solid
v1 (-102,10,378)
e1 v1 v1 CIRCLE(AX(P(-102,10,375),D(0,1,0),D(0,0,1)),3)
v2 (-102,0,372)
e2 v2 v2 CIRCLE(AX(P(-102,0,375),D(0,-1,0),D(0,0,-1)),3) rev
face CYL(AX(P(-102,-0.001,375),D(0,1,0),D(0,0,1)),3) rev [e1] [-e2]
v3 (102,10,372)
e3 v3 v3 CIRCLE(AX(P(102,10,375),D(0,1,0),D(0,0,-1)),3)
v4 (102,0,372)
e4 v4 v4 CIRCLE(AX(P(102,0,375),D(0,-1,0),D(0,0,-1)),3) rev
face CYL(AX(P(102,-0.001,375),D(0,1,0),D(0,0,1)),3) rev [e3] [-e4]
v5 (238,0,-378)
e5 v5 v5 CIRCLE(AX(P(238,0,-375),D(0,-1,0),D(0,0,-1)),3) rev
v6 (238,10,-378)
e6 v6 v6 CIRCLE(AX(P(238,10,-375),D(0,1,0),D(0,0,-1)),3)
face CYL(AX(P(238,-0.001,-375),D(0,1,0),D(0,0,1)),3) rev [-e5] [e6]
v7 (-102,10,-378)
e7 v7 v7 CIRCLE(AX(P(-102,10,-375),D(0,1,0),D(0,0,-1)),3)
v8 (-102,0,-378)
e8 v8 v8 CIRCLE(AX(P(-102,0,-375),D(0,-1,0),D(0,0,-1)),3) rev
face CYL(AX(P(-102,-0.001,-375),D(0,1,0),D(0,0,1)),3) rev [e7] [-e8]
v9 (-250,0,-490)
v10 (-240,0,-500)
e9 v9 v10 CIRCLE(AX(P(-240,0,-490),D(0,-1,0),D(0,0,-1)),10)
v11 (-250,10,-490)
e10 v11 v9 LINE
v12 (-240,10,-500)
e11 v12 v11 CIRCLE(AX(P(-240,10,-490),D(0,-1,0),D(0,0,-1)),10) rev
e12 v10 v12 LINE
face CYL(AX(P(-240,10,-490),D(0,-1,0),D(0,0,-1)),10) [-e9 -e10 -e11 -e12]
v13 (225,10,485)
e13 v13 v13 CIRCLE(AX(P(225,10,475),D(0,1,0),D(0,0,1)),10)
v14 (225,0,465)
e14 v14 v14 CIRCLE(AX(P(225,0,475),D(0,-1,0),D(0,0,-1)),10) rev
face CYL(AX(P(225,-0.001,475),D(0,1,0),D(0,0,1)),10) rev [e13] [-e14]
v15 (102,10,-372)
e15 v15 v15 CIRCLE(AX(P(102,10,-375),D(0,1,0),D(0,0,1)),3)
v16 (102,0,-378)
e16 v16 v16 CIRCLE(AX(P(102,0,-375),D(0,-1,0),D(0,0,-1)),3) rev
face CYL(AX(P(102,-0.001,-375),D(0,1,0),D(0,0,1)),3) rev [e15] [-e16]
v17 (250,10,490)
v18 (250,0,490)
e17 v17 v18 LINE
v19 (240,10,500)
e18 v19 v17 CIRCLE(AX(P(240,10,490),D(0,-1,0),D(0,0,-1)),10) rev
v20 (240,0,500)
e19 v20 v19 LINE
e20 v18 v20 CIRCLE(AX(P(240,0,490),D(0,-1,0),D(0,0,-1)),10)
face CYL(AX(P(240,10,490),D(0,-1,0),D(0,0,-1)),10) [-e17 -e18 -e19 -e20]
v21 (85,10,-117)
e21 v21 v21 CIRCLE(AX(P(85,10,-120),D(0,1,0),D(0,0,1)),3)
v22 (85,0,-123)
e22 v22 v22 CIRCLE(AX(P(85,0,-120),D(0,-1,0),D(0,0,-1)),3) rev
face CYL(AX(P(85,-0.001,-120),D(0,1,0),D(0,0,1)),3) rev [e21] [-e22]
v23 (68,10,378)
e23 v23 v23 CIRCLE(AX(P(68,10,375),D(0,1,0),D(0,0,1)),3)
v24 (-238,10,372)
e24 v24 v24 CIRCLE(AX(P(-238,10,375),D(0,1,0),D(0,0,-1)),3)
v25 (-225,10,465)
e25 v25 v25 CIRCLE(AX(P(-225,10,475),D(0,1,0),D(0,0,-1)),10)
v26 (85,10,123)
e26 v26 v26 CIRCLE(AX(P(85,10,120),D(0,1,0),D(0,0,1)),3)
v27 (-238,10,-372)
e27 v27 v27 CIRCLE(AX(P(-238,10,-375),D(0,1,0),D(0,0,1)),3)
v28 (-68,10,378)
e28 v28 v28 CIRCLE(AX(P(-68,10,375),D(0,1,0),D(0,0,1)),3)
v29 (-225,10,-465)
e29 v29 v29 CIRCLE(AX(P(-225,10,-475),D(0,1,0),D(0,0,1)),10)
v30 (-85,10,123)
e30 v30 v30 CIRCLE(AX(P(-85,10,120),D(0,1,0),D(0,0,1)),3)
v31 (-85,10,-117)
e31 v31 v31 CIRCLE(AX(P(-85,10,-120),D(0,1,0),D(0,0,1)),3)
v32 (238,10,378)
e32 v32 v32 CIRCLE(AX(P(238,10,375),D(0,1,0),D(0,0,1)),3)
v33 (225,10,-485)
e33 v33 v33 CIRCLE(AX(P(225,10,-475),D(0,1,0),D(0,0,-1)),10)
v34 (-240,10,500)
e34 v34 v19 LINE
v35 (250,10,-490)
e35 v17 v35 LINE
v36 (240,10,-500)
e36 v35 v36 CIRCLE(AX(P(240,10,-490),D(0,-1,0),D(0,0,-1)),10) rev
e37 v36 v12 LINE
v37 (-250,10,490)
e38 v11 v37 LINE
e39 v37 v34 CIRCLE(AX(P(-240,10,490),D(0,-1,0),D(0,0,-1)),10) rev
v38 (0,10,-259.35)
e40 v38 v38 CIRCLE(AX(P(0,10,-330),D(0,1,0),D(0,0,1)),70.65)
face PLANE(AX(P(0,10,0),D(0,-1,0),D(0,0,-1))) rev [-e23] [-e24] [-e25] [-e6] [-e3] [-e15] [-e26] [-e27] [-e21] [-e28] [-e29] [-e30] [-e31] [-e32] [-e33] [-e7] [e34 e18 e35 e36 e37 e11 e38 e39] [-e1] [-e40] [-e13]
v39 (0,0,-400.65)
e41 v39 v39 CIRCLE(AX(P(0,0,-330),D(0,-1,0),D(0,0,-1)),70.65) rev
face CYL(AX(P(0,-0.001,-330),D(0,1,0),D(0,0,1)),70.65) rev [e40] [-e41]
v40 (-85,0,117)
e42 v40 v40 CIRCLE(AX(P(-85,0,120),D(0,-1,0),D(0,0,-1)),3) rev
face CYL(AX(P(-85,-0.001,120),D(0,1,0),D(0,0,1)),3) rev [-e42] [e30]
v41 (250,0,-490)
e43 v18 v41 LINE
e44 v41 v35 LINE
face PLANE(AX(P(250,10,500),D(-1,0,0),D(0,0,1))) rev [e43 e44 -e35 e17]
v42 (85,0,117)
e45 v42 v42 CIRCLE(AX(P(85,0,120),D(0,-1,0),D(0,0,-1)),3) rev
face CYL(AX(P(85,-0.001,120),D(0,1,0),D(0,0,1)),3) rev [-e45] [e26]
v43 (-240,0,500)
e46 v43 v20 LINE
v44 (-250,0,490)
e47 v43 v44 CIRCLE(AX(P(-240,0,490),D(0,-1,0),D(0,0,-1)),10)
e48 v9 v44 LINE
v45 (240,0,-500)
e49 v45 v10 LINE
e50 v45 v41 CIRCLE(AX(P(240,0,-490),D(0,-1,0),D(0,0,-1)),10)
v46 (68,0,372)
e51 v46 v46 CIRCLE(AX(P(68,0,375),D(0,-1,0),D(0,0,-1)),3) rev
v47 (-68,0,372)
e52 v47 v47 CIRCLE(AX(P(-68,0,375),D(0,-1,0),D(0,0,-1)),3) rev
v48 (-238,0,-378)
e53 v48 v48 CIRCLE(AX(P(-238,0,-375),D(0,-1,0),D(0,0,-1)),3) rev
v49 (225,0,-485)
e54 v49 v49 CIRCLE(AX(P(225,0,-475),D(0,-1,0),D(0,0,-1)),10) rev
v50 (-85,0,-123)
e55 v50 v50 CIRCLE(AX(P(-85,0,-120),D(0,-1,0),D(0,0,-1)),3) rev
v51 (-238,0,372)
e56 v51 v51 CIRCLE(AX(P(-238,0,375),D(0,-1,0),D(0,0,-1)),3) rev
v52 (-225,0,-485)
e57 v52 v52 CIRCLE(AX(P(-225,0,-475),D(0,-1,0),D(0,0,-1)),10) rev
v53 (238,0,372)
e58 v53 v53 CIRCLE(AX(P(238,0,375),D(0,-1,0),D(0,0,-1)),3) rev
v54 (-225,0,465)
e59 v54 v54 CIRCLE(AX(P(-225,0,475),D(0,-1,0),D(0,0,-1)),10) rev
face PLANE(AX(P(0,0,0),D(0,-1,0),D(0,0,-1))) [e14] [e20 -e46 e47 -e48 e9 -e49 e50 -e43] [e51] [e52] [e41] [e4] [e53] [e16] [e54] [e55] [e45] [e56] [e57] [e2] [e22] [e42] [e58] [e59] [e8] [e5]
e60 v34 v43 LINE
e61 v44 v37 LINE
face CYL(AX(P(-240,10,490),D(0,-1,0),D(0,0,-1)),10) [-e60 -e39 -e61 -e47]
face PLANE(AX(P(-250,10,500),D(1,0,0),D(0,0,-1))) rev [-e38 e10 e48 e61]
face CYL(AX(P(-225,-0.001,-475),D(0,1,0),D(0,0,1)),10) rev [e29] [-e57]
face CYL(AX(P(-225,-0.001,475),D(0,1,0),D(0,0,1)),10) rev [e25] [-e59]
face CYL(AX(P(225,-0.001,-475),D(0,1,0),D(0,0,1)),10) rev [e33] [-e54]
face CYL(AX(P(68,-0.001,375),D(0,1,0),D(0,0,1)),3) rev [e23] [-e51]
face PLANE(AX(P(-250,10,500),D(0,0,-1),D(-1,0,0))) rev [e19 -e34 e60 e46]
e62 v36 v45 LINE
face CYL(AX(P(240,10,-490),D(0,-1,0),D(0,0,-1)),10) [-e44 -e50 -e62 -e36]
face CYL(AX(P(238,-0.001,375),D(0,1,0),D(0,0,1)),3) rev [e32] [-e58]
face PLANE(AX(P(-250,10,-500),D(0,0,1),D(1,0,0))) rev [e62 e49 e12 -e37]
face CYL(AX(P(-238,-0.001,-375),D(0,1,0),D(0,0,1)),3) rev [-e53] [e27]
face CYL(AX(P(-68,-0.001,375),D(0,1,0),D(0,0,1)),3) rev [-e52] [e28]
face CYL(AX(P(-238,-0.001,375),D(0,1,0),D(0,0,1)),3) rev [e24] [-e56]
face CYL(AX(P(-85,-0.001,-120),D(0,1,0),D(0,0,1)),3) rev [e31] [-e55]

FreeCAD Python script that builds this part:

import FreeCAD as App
import Part
import Sketcher

V = App.Vector
Q = App.Units.Quantity


def edges_at(feature, points):
    """Names of the edges that pass closest to the given points."""
    edges = feature.Shape.Edges
    near = lambda p: min(range(len(edges)), key=lambda i: edges[i].distToShape(Part.Vertex(*p))[0])
    return sorted({f"Edge{near(p) + 1}" for p in points})


def add_polygon(sketch, points):
    """Adds a closed chain of lines whose ends are joined by coincident constraints."""
    first, n = sketch.GeometryCount, len(points)
    for a, b in zip(points, points[1:] + points[:1]):
        sketch.addGeometry(Part.LineSegment(App.Vector(*a, 0), App.Vector(*b, 0)), False)
    for i in range(n):
        sketch.addConstraint(Sketcher.Constraint("Coincident", first + i, 2, first + (i + 1) % n, 1))

doc = App.newDocument("Part")
body = doc.addObject("PartDesign::Body", "Body")

sketch1 = body.newObject("Sketcher::SketchObject", "Sketch")
sketch1.AttachmentSupport = (doc.getObject("XZ_Plane"), [""])
sketch1.MapMode = "FlatFace"
add_polygon(sketch1, [(-250, -500), (-250, 500), (250, 500), (250, -500)])
sketch1.addConstraint([
    Sketcher.Constraint("Vertical", 0),
    Sketcher.Constraint("Horizontal", 1),
    Sketcher.Constraint("Vertical", 2),
    Sketcher.Constraint("Horizontal", 3),
    Sketcher.Constraint("Symmetric", 0, 2, 2, 2, -1, 1),
    Sketcher.Constraint("DistanceX", 1, 1, 1, 2, Q("500 mm")),
    Sketcher.Constraint("DistanceY", 0, 1, 0, 2, Q("1000 mm")),
])
pad1 = body.newObject("PartDesign::Pad", "Pad")
pad1.Profile = sketch1
pad1.Length = 10
pad1.Reversed = True

sketch2 = body.newObject("Sketcher::SketchObject", "Sketch001")
sketch2.AttachmentSupport = (doc.getObject("XZ_Plane"), [""])
sketch2.MapMode = "FlatFace"
sketch2.AttachmentOffset = App.Placement(V(0, 0, -10), App.Rotation())
sketch2.addGeometry(Part.Circle(V(-225, -475, 0), V(0, 0, 1), 10), False)
sketch2.addConstraint([
    Sketcher.Constraint("Diameter", 0, Q("20 mm")),
    Sketcher.Constraint("DistanceX", 0, 3, -1, 1, Q("225 mm")),
    Sketcher.Constraint("DistanceY", 0, 3, -1, 1, Q("475 mm")),
])
pocket1 = body.newObject("PartDesign::Pocket", "Pocket")
pocket1.Profile = sketch2
pocket1.Type = "UpToFirst"
pocket1.Reversed = True

sketch3 = body.newObject("Sketcher::SketchObject", "Sketch002")
sketch3.AttachmentSupport = (doc.getObject("XZ_Plane"), [""])
sketch3.MapMode = "FlatFace"
sketch3.AttachmentOffset = App.Placement(V(0, 0, -10), App.Rotation())
sketch3.addGeometry(Part.Circle(V(225, -475, 0), V(0, 0, 1), 10), False)
sketch3.addConstraint([
    Sketcher.Constraint("Diameter", 0, Q("20 mm")),
    Sketcher.Constraint("DistanceX", -1, 1, 0, 3, Q("225 mm")),
    Sketcher.Constraint("DistanceY", 0, 3, -1, 1, Q("475 mm")),
])
pocket2 = body.newObject("PartDesign::Pocket", "Pocket001")
pocket2.Profile = sketch3
pocket2.Type = "UpToFirst"
pocket2.Reversed = True

sketch4 = body.newObject("Sketcher::SketchObject", "Sketch003")
sketch4.AttachmentSupport = (doc.getObject("XZ_Plane"), [""])
sketch4.MapMode = "FlatFace"
sketch4.AttachmentOffset = App.Placement(V(0, 0, -10), App.Rotation())
sketch4.addGeometry(Part.Circle(V(-225, 475, 0), V(0, 0, 1), 10), False)
sketch4.addConstraint([
    Sketcher.Constraint("Diameter", 0, Q("20 mm")),
    Sketcher.Constraint("DistanceX", 0, 3, -1, 1, Q("225 mm")),
    Sketcher.Constraint("DistanceY", -1, 1, 0, 3, Q("475 mm")),
])
pocket3 = body.newObject("PartDesign::Pocket", "Pocket002")
pocket3.Profile = sketch4
pocket3.Type = "UpToFirst"
pocket3.Reversed = True

sketch5 = body.newObject("Sketcher::SketchObject", "Sketch004")
sketch5.AttachmentSupport = (doc.getObject("XZ_Plane"), [""])
sketch5.MapMode = "FlatFace"
sketch5.AttachmentOffset = App.Placement(V(0, 0, -10), App.Rotation())
sketch5.addGeometry(Part.Circle(V(225, 475, 0), V(0, 0, 1), 10), False)
sketch5.addConstraint([
    Sketcher.Constraint("Diameter", 0, Q("20 mm")),
    Sketcher.Constraint("DistanceX", -1, 1, 0, 3, Q("225 mm")),
    Sketcher.Constraint("DistanceY", -1, 1, 0, 3, Q("475 mm")),
])
pocket4 = body.newObject("PartDesign::Pocket", "Pocket003")
pocket4.Profile = sketch5
pocket4.Type = "UpToFirst"
pocket4.Reversed = True
doc.recompute()

fillet = body.newObject("PartDesign::Fillet", "Fillet")
fillet.Base = (pocket4, edges_at(pocket4, [
    (250, 5, 500),
    (-250, 5, 500),
    (-250, 5, -500),
    (250, 5, -500),
]))
fillet.Radius = 10

sketch6 = body.newObject("Sketcher::SketchObject", "Sketch005")
sketch6.AttachmentSupport = (doc.getObject("XZ_Plane"), [""])
sketch6.MapMode = "FlatFace"
sketch6.AttachmentOffset = App.Placement(V(0, 0, -10), App.Rotation())
sketch6.addGeometry(Part.Circle(V(0, -330, 0), V(0, 0, 1), 71), False)
sketch6.addConstraint([
    Sketcher.Constraint("PointOnObject", 0, 3, -2),
    Sketcher.Constraint("Diameter", 0, Q("141.3 mm")),
    Sketcher.Constraint("DistanceY", 0, 3, -1, 1, Q("330 mm")),
])
pocket5 = body.newObject("PartDesign::Pocket", "Pocket004")
pocket5.Profile = sketch6
pocket5.Type = "UpToFirst"
pocket5.Reversed = True

sketch7 = body.newObject("Sketcher::SketchObject", "Sketch006")
sketch7.AttachmentSupport = (doc.getObject("XZ_Plane"), [""])
sketch7.MapMode = "FlatFace"
sketch7.AttachmentOffset = App.Placement(V(0, 0, -10), App.Rotation())
sketch7.addGeometry(Part.Circle(V(-85, -120, 0), V(0, 0, 1), 3), False)
sketch7.addConstraint([
    Sketcher.Constraint("Diameter", 0, Q("6 mm")),
    Sketcher.Constraint("DistanceX", 0, 3, -1, 1, Q("85 mm")),
    Sketcher.Constraint("DistanceY", 0, 3, -1, 1, Q("120 mm")),
])
pocket6 = body.newObject("PartDesign::Pocket", "Pocket005")
pocket6.Profile = sketch7
pocket6.Type = "UpToFirst"
pocket6.Reversed = True

sketch8 = body.newObject("Sketcher::SketchObject", "Sketch007")
sketch8.AttachmentSupport = (doc.getObject("XZ_Plane"), [""])
sketch8.MapMode = "FlatFace"
sketch8.AttachmentOffset = App.Placement(V(0, 0, -10), App.Rotation())
sketch8.addGeometry(Part.Circle(V(85, -120, 0), V(0, 0, 1), 3), False)
sketch8.addConstraint([
    Sketcher.Constraint("Diameter", 0, Q("6 mm")),
    Sketcher.Constraint("DistanceX", -1, 1, 0, 3, Q("85 mm")),
    Sketcher.Constraint("DistanceY", 0, 3, -1, 1, Q("120 mm")),
])
pocket7 = body.newObject("PartDesign::Pocket", "Pocket006")
pocket7.Profile = sketch8
pocket7.Type = "UpToFirst"
pocket7.Reversed = True

sketch9 = body.newObject("Sketcher::SketchObject", "Sketch008")
sketch9.AttachmentSupport = (doc.getObject("XZ_Plane"), [""])
sketch9.MapMode = "FlatFace"
sketch9.AttachmentOffset = App.Placement(V(0, 0, -10), App.Rotation())
sketch9.addGeometry(Part.Circle(V(85, 120, 0), V(0, 0, 1), 3), False)
sketch9.addConstraint([
    Sketcher.Constraint("Diameter", 0, Q("6 mm")),
    Sketcher.Constraint("DistanceX", -1, 1, 0, 3, Q("85 mm")),
    Sketcher.Constraint("DistanceY", -1, 1, 0, 3, Q("120 mm")),
])
pocket8 = body.newObject("PartDesign::Pocket", "Pocket007")
pocket8.Profile = sketch9
pocket8.Type = "UpToFirst"
pocket8.Reversed = True

sketch10 = body.newObject("Sketcher::SketchObject", "Sketch009")
sketch10.AttachmentSupport = (doc.getObject("XZ_Plane"), [""])
sketch10.MapMode = "FlatFace"
sketch10.AttachmentOffset = App.Placement(V(0, 0, -10), App.Rotation())
sketch10.addGeometry(Part.Circle(V(-85, 120, 0), V(0, 0, 1), 3), False)
sketch10.addConstraint([
    Sketcher.Constraint("Diameter", 0, Q("6 mm")),
    Sketcher.Constraint("DistanceX", 0, 3, -1, 1, Q("85 mm")),
    Sketcher.Constraint("DistanceY", -1, 1, 0, 3, Q("120 mm")),
])
pocket9 = body.newObject("PartDesign::Pocket", "Pocket008")
pocket9.Profile = sketch10
pocket9.Type = "UpToFirst"
pocket9.Reversed = True

sketch11 = body.newObject("Sketcher::SketchObject", "Sketch010")
sketch11.AttachmentSupport = (doc.getObject("XZ_Plane"), [""])
sketch11.MapMode = "FlatFace"
sketch11.AttachmentOffset = App.Placement(V(0, 0, -10), App.Rotation())
sketch11.addGeometry(Part.Circle(V(238, 375, 0), V(0, 0, 1), 3), False)
sketch11.addConstraint([
    Sketcher.Constraint("Diameter", 0, Q("6 mm")),
    Sketcher.Constraint("DistanceX", -1, 1, 0, 3, Q("238 mm")),
    Sketcher.Constraint("DistanceY", -1, 1, 0, 3, Q("375 mm")),
])
pocket10 = body.newObject("PartDesign::Pocket", "Pocket009")
pocket10.Profile = sketch11
pocket10.Type = "UpToFirst"
pocket10.Reversed = True

sketch12 = body.newObject("Sketcher::SketchObject", "Sketch011")
sketch12.AttachmentSupport = (doc.getObject("XZ_Plane"), [""])
sketch12.MapMode = "FlatFace"
sketch12.AttachmentOffset = App.Placement(V(0, 0, -10), App.Rotation())
sketch12.addGeometry(Part.Circle(V(102, 375, 0), V(0, 0, 1), 3), False)
sketch12.addConstraint([
    Sketcher.Constraint("Diameter", 0, Q("6 mm")),
    Sketcher.Constraint("DistanceX", -1, 1, 0, 3, Q("102 mm")),
    Sketcher.Constraint("DistanceY", -1, 1, 0, 3, Q("375 mm")),
])
pocket11 = body.newObject("PartDesign::Pocket", "Pocket010")
pocket11.Profile = sketch12
pocket11.Type = "UpToFirst"
pocket11.Reversed = True

sketch13 = body.newObject("Sketcher::SketchObject", "Sketch012")
sketch13.AttachmentSupport = (doc.getObject("XZ_Plane"), [""])
sketch13.MapMode = "FlatFace"
sketch13.AttachmentOffset = App.Placement(V(0, 0, -10), App.Rotation())
sketch13.addGeometry(Part.Circle(V(-102, 375, 0), V(0, 0, 1), 3), False)
sketch13.addConstraint([
    Sketcher.Constraint("Diameter", 0, Q("6 mm")),
    Sketcher.Constraint("DistanceX", 0, 3, -1, 1, Q("102 mm")),
    Sketcher.Constraint("DistanceY", -1, 1, 0, 3, Q("375 mm")),
])
pocket12 = body.newObject("PartDesign::Pocket", "Pocket011")
pocket12.Profile = sketch13
pocket12.Type = "UpToFirst"
pocket12.Reversed = True

sketch14 = body.newObject("Sketcher::SketchObject", "Sketch013")
sketch14.AttachmentSupport = (doc.getObject("XZ_Plane"), [""])
sketch14.MapMode = "FlatFace"
sketch14.AttachmentOffset = App.Placement(V(0, 0, -10), App.Rotation())
sketch14.addGeometry(Part.Circle(V(-238, 375, 0), V(0, 0, 1), 3), False)
sketch14.addConstraint([
    Sketcher.Constraint("Diameter", 0, Q("6 mm")),
    Sketcher.Constraint("DistanceX", 0, 3, -1, 1, Q("238 mm")),
    Sketcher.Constraint("DistanceY", -1, 1, 0, 3, Q("375 mm")),
])
pocket13 = body.newObject("PartDesign::Pocket", "Pocket012")
pocket13.Profile = sketch14
pocket13.Type = "UpToFirst"
pocket13.Reversed = True

sketch15 = body.newObject("Sketcher::SketchObject", "Sketch014")
sketch15.AttachmentSupport = (doc.getObject("XZ_Plane"), [""])
sketch15.MapMode = "FlatFace"
sketch15.AttachmentOffset = App.Placement(V(0, 0, -10), App.Rotation())
sketch15.addGeometry(Part.Circle(V(-238, -375, 0), V(0, 0, 1), 3), False)
sketch15.addConstraint([
    Sketcher.Constraint("Diameter", 0, Q("6 mm")),
    Sketcher.Constraint("DistanceX", 0, 3, -1, 1, Q("238 mm")),
    Sketcher.Constraint("DistanceY", 0, 3, -1, 1, Q("375 mm")),
])
pocket14 = body.newObject("PartDesign::Pocket", "Pocket013")
pocket14.Profile = sketch15
pocket14.Type = "UpToFirst"
pocket14.Reversed = True

sketch16 = body.newObject("Sketcher::SketchObject", "Sketch015")
sketch16.AttachmentSupport = (doc.getObject("XZ_Plane"), [""])
sketch16.MapMode = "FlatFace"
sketch16.AttachmentOffset = App.Placement(V(0, 0, -10), App.Rotation())
sketch16.addGeometry(Part.Circle(V(-102, -375, 0), V(0, 0, 1), 3), False)
sketch16.addConstraint([
    Sketcher.Constraint("Diameter", 0, Q("6 mm")),
    Sketcher.Constraint("DistanceX", 0, 3, -1, 1, Q("102 mm")),
    Sketcher.Constraint("DistanceY", 0, 3, -1, 1, Q("375 mm")),
])
pocket15 = body.newObject("PartDesign::Pocket", "Pocket014")
pocket15.Profile = sketch16
pocket15.Type = "UpToFirst"
pocket15.Reversed = True

sketch17 = body.newObject("Sketcher::SketchObject", "Sketch016")
sketch17.AttachmentSupport = (doc.getObject("XZ_Plane"), [""])
sketch17.MapMode = "FlatFace"
sketch17.AttachmentOffset = App.Placement(V(0, 0, -10), App.Rotation())
sketch17.addGeometry(Part.Circle(V(102, -375, 0), V(0, 0, 1), 3), False)
sketch17.addConstraint([
    Sketcher.Constraint("Diameter", 0, Q("6 mm")),
    Sketcher.Constraint("DistanceX", -1, 1, 0, 3, Q("102 mm")),
    Sketcher.Constraint("DistanceY", 0, 3, -1, 1, Q("375 mm")),
])
pocket16 = body.newObject("PartDesign::Pocket", "Pocket015")
pocket16.Profile = sketch17
pocket16.Type = "UpToFirst"
pocket16.Reversed = True

sketch18 = body.newObject("Sketcher::SketchObject", "Sketch017")
sketch18.AttachmentSupport = (doc.getObject("XZ_Plane"), [""])
sketch18.MapMode = "FlatFace"
sketch18.AttachmentOffset = App.Placement(V(0, 0, -10), App.Rotation())
sketch18.addGeometry(Part.Circle(V(238, -375, 0), V(0, 0, 1), 3), False)
sketch18.addConstraint([
    Sketcher.Constraint("Diameter", 0, Q("6 mm")),
    Sketcher.Constraint("DistanceX", -1, 1, 0, 3, Q("238 mm")),
    Sketcher.Constraint("DistanceY", 0, 3, -1, 1, Q("375 mm")),
])
pocket17 = body.newObject("PartDesign::Pocket", "Pocket016")
pocket17.Profile = sketch18
pocket17.Type = "UpToFirst"
pocket17.Reversed = True

sketch19 = body.newObject("Sketcher::SketchObject", "Sketch018")
sketch19.AttachmentSupport = (doc.getObject("XZ_Plane"), [""])
sketch19.MapMode = "FlatFace"
sketch19.AttachmentOffset = App.Placement(V(0, 0, -10), App.Rotation())
sketch19.addGeometry(Part.Circle(V(68, 375, 0), V(0, 0, 1), 3), False)
sketch19.addConstraint([
    Sketcher.Constraint("Diameter", 0, Q("6 mm")),
    Sketcher.Constraint("DistanceX", -1, 1, 0, 3, Q("68 mm")),
    Sketcher.Constraint("DistanceY", -1, 1, 0, 3, Q("375 mm")),
])
pocket18 = body.newObject("PartDesign::Pocket", "Pocket017")
pocket18.Profile = sketch19
pocket18.Type = "UpToFirst"
pocket18.Reversed = True

sketch20 = body.newObject("Sketcher::SketchObject", "Sketch019")
sketch20.AttachmentSupport = (doc.getObject("XZ_Plane"), [""])
sketch20.MapMode = "FlatFace"
sketch20.AttachmentOffset = App.Placement(V(0, 0, -10), App.Rotation())
sketch20.addGeometry(Part.Circle(V(-68, 375, 0), V(0, 0, 1), 3), False)
sketch20.addConstraint([
    Sketcher.Constraint("Diameter", 0, Q("6 mm")),
    Sketcher.Constraint("DistanceX", 0, 3, -1, 1, Q("68 mm")),
    Sketcher.Constraint("DistanceY", -1, 1, 0, 3, Q("375 mm")),
])
pocket19 = body.newObject("PartDesign::Pocket", "Pocket018")
pocket19.Profile = sketch20
pocket19.Type = "UpToFirst"
pocket19.Reversed = True

doc.recompute()
